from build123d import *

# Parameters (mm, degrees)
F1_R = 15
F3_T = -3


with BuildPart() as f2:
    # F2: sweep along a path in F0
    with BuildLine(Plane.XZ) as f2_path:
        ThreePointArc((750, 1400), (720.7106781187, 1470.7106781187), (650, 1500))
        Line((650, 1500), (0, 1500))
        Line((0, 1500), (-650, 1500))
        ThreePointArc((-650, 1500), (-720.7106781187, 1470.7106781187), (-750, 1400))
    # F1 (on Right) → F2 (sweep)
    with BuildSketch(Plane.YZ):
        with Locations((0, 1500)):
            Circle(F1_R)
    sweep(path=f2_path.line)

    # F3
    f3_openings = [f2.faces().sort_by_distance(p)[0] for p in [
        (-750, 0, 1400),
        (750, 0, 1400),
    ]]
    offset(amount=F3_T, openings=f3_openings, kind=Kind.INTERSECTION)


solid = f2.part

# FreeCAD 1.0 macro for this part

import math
import FreeCAD as App
import Part
import Sketcher


def faces_at(feature, points):
    """Names of the faces that lie closest to the given points."""
    faces = feature.Shape.Faces
    near = lambda p: min(range(len(faces)), key=lambda i: faces[i].distToShape(Part.Vertex(*p))[0])
    return sorted({f"Face{near(p) + 1}" for p in points})

doc = App.newDocument("Part")
body = doc.addObject("PartDesign::Body", "Body")

# Sketch on YZ plane
sketch1 = body.newObject("Sketcher::SketchObject", "Sketch")
sketch1.AttachmentSupport = (doc.getObject("YZ_Plane"), [""])
sketch1.MapMode = "FlatFace"
sketch1.addGeometry(Part.Circle(App.Vector(0, 1500, 0), App.Vector(0, 0, 1), 15), False)
sketch1.addConstraint(Sketcher.Constraint("PointOnObject", 0, 3, -2))
sketch1.addConstraint(Sketcher.Constraint("Diameter", 0, 30.0))
sketch1.addConstraint(Sketcher.Constraint("DistanceY", -1, 1, 0, 3, 1500.0))

# Sketch on XZ plane
sketch2 = body.newObject("Sketcher::SketchObject", "Sketch001")
sketch2.AttachmentSupport = (doc.getObject("XZ_Plane"), [""])
sketch2.MapMode = "FlatFace"
sketch2.addGeometry(Part.ArcOfCircle(Part.Circle(App.Vector(650, 1400, 0), App.Vector(0, 0, 1), 100), math.radians(0), math.radians(90)), False)
sketch2.addGeometry(Part.LineSegment(App.Vector(650, 1500, 0), App.Vector(-650, 1500, 0)), False)
sketch2.addGeometry(Part.ArcOfCircle(Part.Circle(App.Vector(-650, 1400, 0), App.Vector(0, 0, 1), 100), math.radians(90), math.radians(180)), False)
sketch2.addConstraint(Sketcher.Constraint("Tangent", 0, 2, 1, 1))
sketch2.addConstraint(Sketcher.Constraint("Tangent", 1, 2, 2, 1))
sketch2.addConstraint(Sketcher.Constraint("Horizontal", 1))
sketch2.addConstraint(Sketcher.Constraint("Equal", 0, 2))
sketch2.addConstraint(Sketcher.Constraint("Symmetric", 0, 1, 2, 2, -2))
sketch2.addConstraint(Sketcher.Constraint("Horizontal", 2, 3, 0, 1))
sketch2.addConstraint(Sketcher.Constraint("Radius", 0, 100.0))
sketch2.addConstraint(Sketcher.Constraint("DistanceX", 1, 2, 1, 1, 1300.0))
sketch2.addConstraint(Sketcher.Constraint("DistanceY", -1, 1, 0, 3, 1400.0))
doc.recompute()

additivepipe = body.newObject("PartDesign::AdditivePipe", "AdditivePipe")
additivepipe.Profile = sketch1
additivepipe.Spine = (sketch2, ["Edge1", "Edge2", "Edge3"])
doc.recompute()

thickness = body.newObject("PartDesign::Thickness", "Thickness")
thickness.Base = (additivepipe, faces_at(additivepipe, [(-750, 0, 1400), (750, 0, 1400)]))
thickness.Value = 3
thickness.Reversed = True
thickness.Join = "Intersection"

doc.recompute()
